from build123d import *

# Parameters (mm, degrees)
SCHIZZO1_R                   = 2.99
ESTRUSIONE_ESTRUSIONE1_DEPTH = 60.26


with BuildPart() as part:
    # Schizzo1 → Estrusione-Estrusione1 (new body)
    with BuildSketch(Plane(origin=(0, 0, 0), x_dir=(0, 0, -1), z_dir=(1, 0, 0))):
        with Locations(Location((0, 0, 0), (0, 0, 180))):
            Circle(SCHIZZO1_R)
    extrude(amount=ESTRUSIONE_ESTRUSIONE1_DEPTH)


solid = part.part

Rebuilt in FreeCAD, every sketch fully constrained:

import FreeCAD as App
import Part
import Sketcher

doc = App.newDocument("Part")
body = doc.addObject("PartDesign::Body", "Body")

sketch1 = body.newObject("Sketcher::SketchObject", "Sketch")
sketch1.AttachmentSupport = (doc.getObject("YZ_Plane"), [""])
sketch1.MapMode = "FlatFace"
sketch1.addGeometry(Part.Circle(App.Vector(0, 0, 0), App.Vector(0, 0, 1), 2.99), False)
sketch1.addConstraint(Sketcher.Constraint("Coincident", 0, 3, -1, 1))
sketch1.addConstraint(Sketcher.Constraint("Diameter", 0, 5.98))
pad1 = body.newObject("PartDesign::Pad", "Pad")
pad1.Profile = sketch1
pad1.Length = 60.26

doc.recompute()
